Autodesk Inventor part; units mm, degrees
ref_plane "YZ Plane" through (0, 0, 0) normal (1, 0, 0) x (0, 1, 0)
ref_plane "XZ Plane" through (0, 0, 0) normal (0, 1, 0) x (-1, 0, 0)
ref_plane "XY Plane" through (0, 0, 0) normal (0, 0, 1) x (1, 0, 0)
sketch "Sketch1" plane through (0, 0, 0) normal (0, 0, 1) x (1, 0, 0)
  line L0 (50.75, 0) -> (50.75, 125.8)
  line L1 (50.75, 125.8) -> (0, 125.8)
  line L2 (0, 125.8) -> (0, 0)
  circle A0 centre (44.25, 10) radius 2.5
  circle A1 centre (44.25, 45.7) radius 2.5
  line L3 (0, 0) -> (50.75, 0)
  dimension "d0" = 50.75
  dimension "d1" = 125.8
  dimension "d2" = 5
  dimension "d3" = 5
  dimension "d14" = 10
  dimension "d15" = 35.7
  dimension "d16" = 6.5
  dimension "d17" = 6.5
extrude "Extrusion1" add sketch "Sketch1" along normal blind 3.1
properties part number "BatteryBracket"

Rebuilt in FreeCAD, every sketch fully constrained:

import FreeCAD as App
import Part
import Sketcher
Q = App.Units.Quantity


def add_polygon(sketch, points):
    """Adds a closed chain of lines whose ends are joined by coincident constraints."""
    first, n = sketch.GeometryCount, len(points)
    for a, b in zip(points, points[1:] + points[:1]):
        sketch.addGeometry(Part.LineSegment(App.Vector(*a, 0), App.Vector(*b, 0)), False)
    for i in range(n):
        sketch.addConstraint(Sketcher.Constraint("Coincident", first + i, 2, first + (i + 1) % n, 1))

doc = App.newDocument("Part")
body = doc.addObject("PartDesign::Body", "Body")

sketch1 = body.newObject("Sketcher::SketchObject", "Sketch")
sketch1.AttachmentSupport = (doc.getObject("XY_Plane"), [""])
sketch1.MapMode = "FlatFace"
add_polygon(sketch1, [(0, 0), (50.8, 0), (50.8, 125.8), (0, 125.8)])
sketch1.addGeometry(Part.Circle(App.Vector(44.2, 10, 0), App.Vector(0, 0, 1), 2.5), False)
sketch1.addGeometry(Part.Circle(App.Vector(44.2, 45.7, 0), App.Vector(0, 0, 1), 2.5), False)
sketch1.addConstraint([
    Sketcher.Constraint("Horizontal", 0),
    Sketcher.Constraint("Vertical", 1),
    Sketcher.Constraint("Horizontal", 2),
    Sketcher.Constraint("Vertical", 3),
    Sketcher.Constraint("Coincident", 3, 2, -1, 1),
    Sketcher.Constraint("Equal", 4, 5),
    Sketcher.Constraint("Vertical", 4, 3, 5, 3),
    Sketcher.Constraint("Diameter", 4, Q("5 mm")),
    Sketcher.Constraint("DistanceY", 1, 1, 1, 2, Q("125.8 mm")),
    Sketcher.Constraint("DistanceY", -1, 1, 4, 3, Q("10 mm")),
    Sketcher.Constraint("DistanceX", 0, 1, 0, 2, Q("50.75 mm")),
    Sketcher.Constraint("DistanceY", 4, 3, 5, 3, Q("35.7 mm")),
    Sketcher.Constraint("DistanceX", 4, 3, 0, 2, Q("6.5 mm")),
])
pad1 = body.newObject("PartDesign::Pad", "Pad")
pad1.Profile = sketch1
pad1.Length = 3.1

doc.recompute()
